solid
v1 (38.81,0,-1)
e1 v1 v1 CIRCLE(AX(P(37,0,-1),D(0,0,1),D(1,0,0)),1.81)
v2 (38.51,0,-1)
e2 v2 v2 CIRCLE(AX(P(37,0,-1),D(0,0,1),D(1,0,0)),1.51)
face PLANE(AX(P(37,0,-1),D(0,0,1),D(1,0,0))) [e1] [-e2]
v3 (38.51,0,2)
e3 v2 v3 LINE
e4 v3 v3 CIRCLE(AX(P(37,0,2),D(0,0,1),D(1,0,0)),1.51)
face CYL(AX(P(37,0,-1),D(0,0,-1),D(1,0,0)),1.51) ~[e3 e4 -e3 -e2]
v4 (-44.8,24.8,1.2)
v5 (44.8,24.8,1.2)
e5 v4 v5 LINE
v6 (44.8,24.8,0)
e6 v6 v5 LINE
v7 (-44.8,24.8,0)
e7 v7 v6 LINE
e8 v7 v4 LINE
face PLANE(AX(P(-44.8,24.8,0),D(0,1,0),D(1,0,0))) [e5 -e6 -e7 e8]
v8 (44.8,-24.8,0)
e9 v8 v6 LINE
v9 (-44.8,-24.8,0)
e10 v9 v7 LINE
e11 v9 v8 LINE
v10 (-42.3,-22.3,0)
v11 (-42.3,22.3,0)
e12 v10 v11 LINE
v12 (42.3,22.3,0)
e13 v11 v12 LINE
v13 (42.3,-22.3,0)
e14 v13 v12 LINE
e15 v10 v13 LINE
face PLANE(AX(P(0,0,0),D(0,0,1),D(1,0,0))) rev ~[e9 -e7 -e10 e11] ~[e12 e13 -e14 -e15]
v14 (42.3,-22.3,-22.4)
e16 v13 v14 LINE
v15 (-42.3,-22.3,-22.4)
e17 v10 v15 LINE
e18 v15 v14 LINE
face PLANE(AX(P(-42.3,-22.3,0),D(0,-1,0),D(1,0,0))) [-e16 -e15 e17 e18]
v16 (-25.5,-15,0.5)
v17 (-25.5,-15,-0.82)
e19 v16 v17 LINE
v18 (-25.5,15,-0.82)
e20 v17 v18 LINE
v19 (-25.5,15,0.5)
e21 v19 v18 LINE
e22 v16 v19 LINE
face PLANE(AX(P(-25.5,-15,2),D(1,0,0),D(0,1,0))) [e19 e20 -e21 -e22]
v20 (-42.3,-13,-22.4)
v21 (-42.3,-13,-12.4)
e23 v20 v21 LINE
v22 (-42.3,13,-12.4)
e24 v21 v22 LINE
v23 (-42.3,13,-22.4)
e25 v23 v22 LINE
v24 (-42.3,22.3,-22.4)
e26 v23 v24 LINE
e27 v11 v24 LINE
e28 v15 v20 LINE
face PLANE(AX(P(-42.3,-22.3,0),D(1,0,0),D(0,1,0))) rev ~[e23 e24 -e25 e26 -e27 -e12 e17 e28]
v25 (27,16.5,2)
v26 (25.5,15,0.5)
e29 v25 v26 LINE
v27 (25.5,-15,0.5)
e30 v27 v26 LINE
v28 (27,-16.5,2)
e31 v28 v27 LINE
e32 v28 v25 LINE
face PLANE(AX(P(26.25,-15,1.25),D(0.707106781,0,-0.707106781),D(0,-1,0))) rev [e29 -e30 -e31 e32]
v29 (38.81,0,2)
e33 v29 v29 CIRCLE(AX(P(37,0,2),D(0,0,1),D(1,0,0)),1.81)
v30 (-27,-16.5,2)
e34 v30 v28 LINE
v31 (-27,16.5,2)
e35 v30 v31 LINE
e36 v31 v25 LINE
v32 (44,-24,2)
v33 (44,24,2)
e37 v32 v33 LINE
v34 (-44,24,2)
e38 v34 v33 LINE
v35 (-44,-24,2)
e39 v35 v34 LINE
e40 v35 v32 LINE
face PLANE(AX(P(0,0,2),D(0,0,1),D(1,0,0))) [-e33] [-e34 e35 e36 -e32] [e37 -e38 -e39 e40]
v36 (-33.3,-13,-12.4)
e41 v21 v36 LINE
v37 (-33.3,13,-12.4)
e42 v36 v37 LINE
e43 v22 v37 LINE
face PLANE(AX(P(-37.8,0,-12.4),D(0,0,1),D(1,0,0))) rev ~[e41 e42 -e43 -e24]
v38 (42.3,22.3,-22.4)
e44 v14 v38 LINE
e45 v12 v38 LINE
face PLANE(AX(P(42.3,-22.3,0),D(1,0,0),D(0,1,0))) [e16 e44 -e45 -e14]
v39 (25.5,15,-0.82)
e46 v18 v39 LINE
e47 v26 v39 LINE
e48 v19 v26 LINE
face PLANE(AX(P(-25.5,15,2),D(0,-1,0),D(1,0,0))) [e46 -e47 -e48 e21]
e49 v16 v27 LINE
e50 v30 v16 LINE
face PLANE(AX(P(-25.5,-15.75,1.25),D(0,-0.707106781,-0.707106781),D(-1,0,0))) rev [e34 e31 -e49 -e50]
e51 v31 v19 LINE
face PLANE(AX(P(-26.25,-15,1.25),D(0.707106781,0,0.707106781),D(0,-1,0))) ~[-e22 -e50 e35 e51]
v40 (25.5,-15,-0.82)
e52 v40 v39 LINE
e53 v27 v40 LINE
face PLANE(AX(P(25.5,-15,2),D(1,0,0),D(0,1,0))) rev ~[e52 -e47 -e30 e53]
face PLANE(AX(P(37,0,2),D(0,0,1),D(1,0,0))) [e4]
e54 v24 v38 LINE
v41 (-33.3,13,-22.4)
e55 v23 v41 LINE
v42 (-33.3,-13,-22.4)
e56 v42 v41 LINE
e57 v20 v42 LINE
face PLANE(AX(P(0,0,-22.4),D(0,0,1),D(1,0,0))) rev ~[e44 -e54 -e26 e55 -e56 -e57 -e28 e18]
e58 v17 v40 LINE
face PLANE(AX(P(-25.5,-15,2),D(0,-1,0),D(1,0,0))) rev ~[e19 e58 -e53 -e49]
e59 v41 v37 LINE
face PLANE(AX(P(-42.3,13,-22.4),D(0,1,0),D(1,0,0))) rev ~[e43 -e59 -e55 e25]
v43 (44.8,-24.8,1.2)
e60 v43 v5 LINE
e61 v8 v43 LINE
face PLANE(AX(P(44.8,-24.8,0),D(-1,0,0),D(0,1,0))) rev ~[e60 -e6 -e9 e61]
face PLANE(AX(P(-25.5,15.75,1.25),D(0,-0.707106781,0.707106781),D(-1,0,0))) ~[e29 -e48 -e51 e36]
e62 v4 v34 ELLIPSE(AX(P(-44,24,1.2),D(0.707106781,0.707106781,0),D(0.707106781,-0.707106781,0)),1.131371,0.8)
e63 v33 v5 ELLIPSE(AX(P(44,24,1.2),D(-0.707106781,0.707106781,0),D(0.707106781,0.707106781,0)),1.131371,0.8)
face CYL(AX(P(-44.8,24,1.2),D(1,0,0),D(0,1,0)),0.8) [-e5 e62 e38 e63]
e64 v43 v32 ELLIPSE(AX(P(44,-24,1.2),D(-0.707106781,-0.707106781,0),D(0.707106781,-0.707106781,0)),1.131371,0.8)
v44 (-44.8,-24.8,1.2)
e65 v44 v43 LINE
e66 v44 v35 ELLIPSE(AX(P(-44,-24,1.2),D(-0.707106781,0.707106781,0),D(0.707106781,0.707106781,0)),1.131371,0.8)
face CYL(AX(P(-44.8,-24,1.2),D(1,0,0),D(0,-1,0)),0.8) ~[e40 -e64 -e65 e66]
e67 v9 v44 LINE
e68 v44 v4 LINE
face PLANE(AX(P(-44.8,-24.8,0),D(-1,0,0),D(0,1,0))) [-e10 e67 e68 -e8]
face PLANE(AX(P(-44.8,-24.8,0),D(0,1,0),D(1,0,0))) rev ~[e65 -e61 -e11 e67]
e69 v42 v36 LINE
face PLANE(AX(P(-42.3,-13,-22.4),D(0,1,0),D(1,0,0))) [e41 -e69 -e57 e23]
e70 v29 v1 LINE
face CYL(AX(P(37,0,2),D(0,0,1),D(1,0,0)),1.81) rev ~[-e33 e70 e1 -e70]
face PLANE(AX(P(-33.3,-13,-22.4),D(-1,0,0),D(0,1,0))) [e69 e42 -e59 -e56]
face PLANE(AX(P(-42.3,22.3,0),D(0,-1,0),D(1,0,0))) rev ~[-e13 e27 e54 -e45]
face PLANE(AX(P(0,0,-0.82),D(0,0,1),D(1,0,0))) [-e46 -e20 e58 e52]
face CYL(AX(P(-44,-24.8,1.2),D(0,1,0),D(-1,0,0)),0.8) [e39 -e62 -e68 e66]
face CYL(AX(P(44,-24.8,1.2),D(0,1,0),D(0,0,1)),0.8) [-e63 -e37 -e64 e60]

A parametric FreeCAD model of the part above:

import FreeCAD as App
import Part
import Sketcher
Q = App.Units.Quantity


def edges_at(feature, points):
    """Names of the edges that pass closest to the given points."""
    edges = feature.Shape.Edges
    near = lambda p: min(range(len(edges)), key=lambda i: edges[i].distToShape(Part.Vertex(*p))[0])
    return sorted({f"Edge{near(p) + 1}" for p in points})

doc = App.newDocument("Part")
body = doc.addObject("PartDesign::Body", "Body")

# Sketch on XY plane
sketch1 = doc.addObject("Sketcher::SketchObject", "Sketch")
body.addObject(sketch1)
sketch1.AttachmentSupport = (doc.XY_Plane, [""])
sketch1.MapMode = "FlatFace"
sketch1.addGeometry(Part.LineSegment(App.Vector(-42.3, 22.3, 0), App.Vector(-42.3, -22.3, 0)), False)
sketch1.addGeometry(Part.LineSegment(App.Vector(-42.3, -22.3, 0), App.Vector(42.3, -22.3, 0)), False)
sketch1.addGeometry(Part.LineSegment(App.Vector(42.3, -22.3, 0), App.Vector(42.3, 22.3, 0)), False)
sketch1.addGeometry(Part.LineSegment(App.Vector(42.3, 22.3, 0), App.Vector(-42.3, 22.3, 0)), False)
sketch1.addConstraint(Sketcher.Constraint("Coincident", 0, 2, 1, 1))
sketch1.addConstraint(Sketcher.Constraint("Coincident", 1, 2, 2, 1))
sketch1.addConstraint(Sketcher.Constraint("Coincident", 2, 2, 3, 1))
sketch1.addConstraint(Sketcher.Constraint("Coincident", 3, 2, 0, 1))
sketch1.addConstraint(Sketcher.Constraint("Vertical", 0))
sketch1.addConstraint(Sketcher.Constraint("Horizontal", 1))
sketch1.addConstraint(Sketcher.Constraint("Vertical", 2))
sketch1.addConstraint(Sketcher.Constraint("Horizontal", 3))
sketch1.addConstraint(Sketcher.Constraint("Symmetric", 0, 2, 2, 2, -1, 1))
sketch1.addConstraint(Sketcher.Constraint("DistanceX", 1, 1, 1, 2, Q("84.6 mm")))
sketch1.addConstraint(Sketcher.Constraint("DistanceY", 0, 2, 0, 1, Q("44.6 mm")))
pad1 = doc.addObject("PartDesign::Pad", "Pad")
body.addObject(pad1)
pad1.Profile = sketch1
pad1.Length = 22.4
pad1.Reversed = True

# Sketch on XY plane
sketch2 = doc.addObject("Sketcher::SketchObject", "Sketch001")
body.addObject(sketch2)
sketch2.AttachmentSupport = (doc.XY_Plane, [""])
sketch2.MapMode = "FlatFace"
sketch2.addGeometry(Part.LineSegment(App.Vector(-44.8, 24.8, 0), App.Vector(-44.8, -24.8, 0)), False)
sketch2.addGeometry(Part.LineSegment(App.Vector(-44.8, -24.8, 0), App.Vector(44.8, -24.8, 0)), False)
sketch2.addGeometry(Part.LineSegment(App.Vector(44.8, -24.8, 0), App.Vector(44.8, 24.8, 0)), False)
sketch2.addGeometry(Part.LineSegment(App.Vector(44.8, 24.8, 0), App.Vector(-44.8, 24.8, 0)), False)
sketch2.addConstraint(Sketcher.Constraint("Coincident", 0, 2, 1, 1))
sketch2.addConstraint(Sketcher.Constraint("Coincident", 1, 2, 2, 1))
sketch2.addConstraint(Sketcher.Constraint("Coincident", 2, 2, 3, 1))
sketch2.addConstraint(Sketcher.Constraint("Coincident", 3, 2, 0, 1))
sketch2.addConstraint(Sketcher.Constraint("Vertical", 0))
sketch2.addConstraint(Sketcher.Constraint("Horizontal", 1))
sketch2.addConstraint(Sketcher.Constraint("Vertical", 2))
sketch2.addConstraint(Sketcher.Constraint("Horizontal", 3))
sketch2.addConstraint(Sketcher.Constraint("Symmetric", 0, 2, 2, 2, -1, 1))
sketch2.addConstraint(Sketcher.Constraint("DistanceX", 1, 1, 1, 2, Q("89.6 mm")))
sketch2.addConstraint(Sketcher.Constraint("DistanceY", 0, 2, 0, 1, Q("49.6 mm")))
pad2 = doc.addObject("PartDesign::Pad", "Pad001")
body.addObject(pad2)
pad2.Profile = sketch2
pad2.Length = 2
doc.recompute()

fillet = doc.addObject("PartDesign::Fillet", "Fillet")
body.addObject(fillet)
fillet.Base = (pad2, edges_at(pad2, [
    (0, -24.8, 2),
    (44.8, 0, 2),
    (0, 24.8, 2),
    (-44.8, 0, 2),
]))
fillet.Radius = 0.8

# Sketch on XY plane
sketch3 = doc.addObject("Sketcher::SketchObject", "Sketch002")
body.addObject(sketch3)
sketch3.AttachmentSupport = (doc.XY_Plane, [""])
sketch3.MapMode = "FlatFace"
sketch3.AttachmentOffset = App.Placement(App.Vector(0, 0, 2), App.Rotation())
sketch3.addGeometry(Part.LineSegment(App.Vector(-25.5, 15, 0), App.Vector(-25.5, -15, 0)), False)
sketch3.addGeometry(Part.LineSegment(App.Vector(-25.5, -15, 0), App.Vector(25.5, -15, 0)), False)
sketch3.addGeometry(Part.LineSegment(App.Vector(25.5, -15, 0), App.Vector(25.5, 15, 0)), False)
sketch3.addGeometry(Part.LineSegment(App.Vector(25.5, 15, 0), App.Vector(-25.5, 15, 0)), False)
sketch3.addConstraint(Sketcher.Constraint("Coincident", 0, 2, 1, 1))
sketch3.addConstraint(Sketcher.Constraint("Coincident", 1, 2, 2, 1))
sketch3.addConstraint(Sketcher.Constraint("Coincident", 2, 2, 3, 1))
sketch3.addConstraint(Sketcher.Constraint("Coincident", 3, 2, 0, 1))
sketch3.addConstraint(Sketcher.Constraint("Vertical", 0))
sketch3.addConstraint(Sketcher.Constraint("Horizontal", 1))
sketch3.addConstraint(Sketcher.Constraint("Vertical", 2))
sketch3.addConstraint(Sketcher.Constraint("Horizontal", 3))
sketch3.addConstraint(Sketcher.Constraint("Symmetric", 0, 2, 2, 2, -1, 1))
sketch3.addConstraint(Sketcher.Constraint("DistanceX", 1, 1, 1, 2, Q("51 mm")))
sketch3.addConstraint(Sketcher.Constraint("DistanceY", 0, 2, 0, 1, Q("30 mm")))
pocket1 = doc.addObject("PartDesign::Pocket", "Pocket")
body.addObject(pocket1)
pocket1.Profile = sketch3
pocket1.Length = 2.82
doc.recompute()

chamfer = doc.addObject("PartDesign::Chamfer", "Chamfer")
body.addObject(chamfer)
chamfer.Base = (pocket1, edges_at(pocket1, [
    (-25.5, 0, 2),
    (0, 15, 2),
    (0, -15, 2),
    (25.5, 0, 2),
]))
chamfer.Size = 1.5

# Sketch on XY plane
sketch4 = doc.addObject("Sketcher::SketchObject", "Sketch003")
body.addObject(sketch4)
sketch4.AttachmentSupport = (doc.XY_Plane, [""])
sketch4.MapMode = "FlatFace"
sketch4.AttachmentOffset = App.Placement(App.Vector(0, 0, 2), App.Rotation())
sketch4.addGeometry(Part.Circle(App.Vector(37, 0, 0), App.Vector(0, 0, 1), 1.81), False)
sketch4.addConstraint(Sketcher.Constraint("PointOnObject", 0, 3, -1))
sketch4.addConstraint(Sketcher.Constraint("Diameter", 0, Q("3.62 mm")))
sketch4.addConstraint(Sketcher.Constraint("DistanceX", -1, 1, 0, 3, Q("37 mm")))
pocket2 = doc.addObject("PartDesign::Pocket", "Pocket001")
body.addObject(pocket2)
pocket2.Profile = sketch4
pocket2.Length = 3

# Sketch on XY plane
sketch5 = doc.addObject("Sketcher::SketchObject", "Sketch004")
body.addObject(sketch5)
sketch5.AttachmentSupport = (doc.XY_Plane, [""])
sketch5.MapMode = "FlatFace"
sketch5.AttachmentOffset = App.Placement(App.Vector(0, 0, -22.4), App.Rotation())
sketch5.addGeometry(Part.LineSegment(App.Vector(-42.3, 13, 0), App.Vector(-42.3, -13, 0)), False)
sketch5.addGeometry(Part.LineSegment(App.Vector(-42.3, -13, 0), App.Vector(-33.3, -13, 0)), False)
sketch5.addGeometry(Part.LineSegment(App.Vector(-33.3, -13, 0), App.Vector(-33.3, 13, 0)), False)
sketch5.addGeometry(Part.LineSegment(App.Vector(-33.3, 13, 0), App.Vector(-42.3, 13, 0)), False)
sketch5.addConstraint(Sketcher.Constraint("Coincident", 0, 2, 1, 1))
sketch5.addConstraint(Sketcher.Constraint("Coincident", 1, 2, 2, 1))
sketch5.addConstraint(Sketcher.Constraint("Coincident", 2, 2, 3, 1))
sketch5.addConstraint(Sketcher.Constraint("Coincident", 3, 2, 0, 1))
sketch5.addConstraint(Sketcher.Constraint("Vertical", 0))
sketch5.addConstraint(Sketcher.Constraint("Horizontal", 1))
sketch5.addConstraint(Sketcher.Constraint("Vertical", 2))
sketch5.addConstraint(Sketcher.Constraint("Horizontal", 3))
sketch5.addConstraint(Sketcher.Constraint("DistanceX", 1, 1, 1, 2, Q("9 mm")))
sketch5.addConstraint(Sketcher.Constraint("DistanceY", 0, 2, 0, 1, Q("26 mm")))
sketch5.addConstraint(Sketcher.Constraint("DistanceY", 0, 2, -1, 1, Q("13 mm")))
sketch5.addConstraint(Sketcher.Constraint("DistanceX", 0, 2, -1, 1, Q("42.3 mm")))
pocket3 = doc.addObject("PartDesign::Pocket", "Pocket002")
body.addObject(pocket3)
pocket3.Profile = sketch5
pocket3.Length = 10
pocket3.Reversed = True

# Sketch on XY plane
sketch6 = doc.addObject("Sketcher::SketchObject", "Sketch005")
body.addObject(sketch6)
sketch6.AttachmentSupport = (doc.XY_Plane, [""])
sketch6.MapMode = "FlatFace"
sketch6.AttachmentOffset = App.Placement(App.Vector(0, 0, -1), App.Rotation())
sketch6.addGeometry(Part.Circle(App.Vector(37, 0, 0), App.Vector(0, 0, 1), 1.51), False)
sketch6.addConstraint(Sketcher.Constraint("PointOnObject", 0, 3, -1))
sketch6.addConstraint(Sketcher.Constraint("Diameter", 0, Q("3.02 mm")))
sketch6.addConstraint(Sketcher.Constraint("DistanceX", -1, 1, 0, 3, Q("37 mm")))
pad3 = doc.addObject("PartDesign::Pad", "Pad002")
body.addObject(pad3)
pad3.Profile = sketch6
pad3.Length = 3

doc.recompute()
